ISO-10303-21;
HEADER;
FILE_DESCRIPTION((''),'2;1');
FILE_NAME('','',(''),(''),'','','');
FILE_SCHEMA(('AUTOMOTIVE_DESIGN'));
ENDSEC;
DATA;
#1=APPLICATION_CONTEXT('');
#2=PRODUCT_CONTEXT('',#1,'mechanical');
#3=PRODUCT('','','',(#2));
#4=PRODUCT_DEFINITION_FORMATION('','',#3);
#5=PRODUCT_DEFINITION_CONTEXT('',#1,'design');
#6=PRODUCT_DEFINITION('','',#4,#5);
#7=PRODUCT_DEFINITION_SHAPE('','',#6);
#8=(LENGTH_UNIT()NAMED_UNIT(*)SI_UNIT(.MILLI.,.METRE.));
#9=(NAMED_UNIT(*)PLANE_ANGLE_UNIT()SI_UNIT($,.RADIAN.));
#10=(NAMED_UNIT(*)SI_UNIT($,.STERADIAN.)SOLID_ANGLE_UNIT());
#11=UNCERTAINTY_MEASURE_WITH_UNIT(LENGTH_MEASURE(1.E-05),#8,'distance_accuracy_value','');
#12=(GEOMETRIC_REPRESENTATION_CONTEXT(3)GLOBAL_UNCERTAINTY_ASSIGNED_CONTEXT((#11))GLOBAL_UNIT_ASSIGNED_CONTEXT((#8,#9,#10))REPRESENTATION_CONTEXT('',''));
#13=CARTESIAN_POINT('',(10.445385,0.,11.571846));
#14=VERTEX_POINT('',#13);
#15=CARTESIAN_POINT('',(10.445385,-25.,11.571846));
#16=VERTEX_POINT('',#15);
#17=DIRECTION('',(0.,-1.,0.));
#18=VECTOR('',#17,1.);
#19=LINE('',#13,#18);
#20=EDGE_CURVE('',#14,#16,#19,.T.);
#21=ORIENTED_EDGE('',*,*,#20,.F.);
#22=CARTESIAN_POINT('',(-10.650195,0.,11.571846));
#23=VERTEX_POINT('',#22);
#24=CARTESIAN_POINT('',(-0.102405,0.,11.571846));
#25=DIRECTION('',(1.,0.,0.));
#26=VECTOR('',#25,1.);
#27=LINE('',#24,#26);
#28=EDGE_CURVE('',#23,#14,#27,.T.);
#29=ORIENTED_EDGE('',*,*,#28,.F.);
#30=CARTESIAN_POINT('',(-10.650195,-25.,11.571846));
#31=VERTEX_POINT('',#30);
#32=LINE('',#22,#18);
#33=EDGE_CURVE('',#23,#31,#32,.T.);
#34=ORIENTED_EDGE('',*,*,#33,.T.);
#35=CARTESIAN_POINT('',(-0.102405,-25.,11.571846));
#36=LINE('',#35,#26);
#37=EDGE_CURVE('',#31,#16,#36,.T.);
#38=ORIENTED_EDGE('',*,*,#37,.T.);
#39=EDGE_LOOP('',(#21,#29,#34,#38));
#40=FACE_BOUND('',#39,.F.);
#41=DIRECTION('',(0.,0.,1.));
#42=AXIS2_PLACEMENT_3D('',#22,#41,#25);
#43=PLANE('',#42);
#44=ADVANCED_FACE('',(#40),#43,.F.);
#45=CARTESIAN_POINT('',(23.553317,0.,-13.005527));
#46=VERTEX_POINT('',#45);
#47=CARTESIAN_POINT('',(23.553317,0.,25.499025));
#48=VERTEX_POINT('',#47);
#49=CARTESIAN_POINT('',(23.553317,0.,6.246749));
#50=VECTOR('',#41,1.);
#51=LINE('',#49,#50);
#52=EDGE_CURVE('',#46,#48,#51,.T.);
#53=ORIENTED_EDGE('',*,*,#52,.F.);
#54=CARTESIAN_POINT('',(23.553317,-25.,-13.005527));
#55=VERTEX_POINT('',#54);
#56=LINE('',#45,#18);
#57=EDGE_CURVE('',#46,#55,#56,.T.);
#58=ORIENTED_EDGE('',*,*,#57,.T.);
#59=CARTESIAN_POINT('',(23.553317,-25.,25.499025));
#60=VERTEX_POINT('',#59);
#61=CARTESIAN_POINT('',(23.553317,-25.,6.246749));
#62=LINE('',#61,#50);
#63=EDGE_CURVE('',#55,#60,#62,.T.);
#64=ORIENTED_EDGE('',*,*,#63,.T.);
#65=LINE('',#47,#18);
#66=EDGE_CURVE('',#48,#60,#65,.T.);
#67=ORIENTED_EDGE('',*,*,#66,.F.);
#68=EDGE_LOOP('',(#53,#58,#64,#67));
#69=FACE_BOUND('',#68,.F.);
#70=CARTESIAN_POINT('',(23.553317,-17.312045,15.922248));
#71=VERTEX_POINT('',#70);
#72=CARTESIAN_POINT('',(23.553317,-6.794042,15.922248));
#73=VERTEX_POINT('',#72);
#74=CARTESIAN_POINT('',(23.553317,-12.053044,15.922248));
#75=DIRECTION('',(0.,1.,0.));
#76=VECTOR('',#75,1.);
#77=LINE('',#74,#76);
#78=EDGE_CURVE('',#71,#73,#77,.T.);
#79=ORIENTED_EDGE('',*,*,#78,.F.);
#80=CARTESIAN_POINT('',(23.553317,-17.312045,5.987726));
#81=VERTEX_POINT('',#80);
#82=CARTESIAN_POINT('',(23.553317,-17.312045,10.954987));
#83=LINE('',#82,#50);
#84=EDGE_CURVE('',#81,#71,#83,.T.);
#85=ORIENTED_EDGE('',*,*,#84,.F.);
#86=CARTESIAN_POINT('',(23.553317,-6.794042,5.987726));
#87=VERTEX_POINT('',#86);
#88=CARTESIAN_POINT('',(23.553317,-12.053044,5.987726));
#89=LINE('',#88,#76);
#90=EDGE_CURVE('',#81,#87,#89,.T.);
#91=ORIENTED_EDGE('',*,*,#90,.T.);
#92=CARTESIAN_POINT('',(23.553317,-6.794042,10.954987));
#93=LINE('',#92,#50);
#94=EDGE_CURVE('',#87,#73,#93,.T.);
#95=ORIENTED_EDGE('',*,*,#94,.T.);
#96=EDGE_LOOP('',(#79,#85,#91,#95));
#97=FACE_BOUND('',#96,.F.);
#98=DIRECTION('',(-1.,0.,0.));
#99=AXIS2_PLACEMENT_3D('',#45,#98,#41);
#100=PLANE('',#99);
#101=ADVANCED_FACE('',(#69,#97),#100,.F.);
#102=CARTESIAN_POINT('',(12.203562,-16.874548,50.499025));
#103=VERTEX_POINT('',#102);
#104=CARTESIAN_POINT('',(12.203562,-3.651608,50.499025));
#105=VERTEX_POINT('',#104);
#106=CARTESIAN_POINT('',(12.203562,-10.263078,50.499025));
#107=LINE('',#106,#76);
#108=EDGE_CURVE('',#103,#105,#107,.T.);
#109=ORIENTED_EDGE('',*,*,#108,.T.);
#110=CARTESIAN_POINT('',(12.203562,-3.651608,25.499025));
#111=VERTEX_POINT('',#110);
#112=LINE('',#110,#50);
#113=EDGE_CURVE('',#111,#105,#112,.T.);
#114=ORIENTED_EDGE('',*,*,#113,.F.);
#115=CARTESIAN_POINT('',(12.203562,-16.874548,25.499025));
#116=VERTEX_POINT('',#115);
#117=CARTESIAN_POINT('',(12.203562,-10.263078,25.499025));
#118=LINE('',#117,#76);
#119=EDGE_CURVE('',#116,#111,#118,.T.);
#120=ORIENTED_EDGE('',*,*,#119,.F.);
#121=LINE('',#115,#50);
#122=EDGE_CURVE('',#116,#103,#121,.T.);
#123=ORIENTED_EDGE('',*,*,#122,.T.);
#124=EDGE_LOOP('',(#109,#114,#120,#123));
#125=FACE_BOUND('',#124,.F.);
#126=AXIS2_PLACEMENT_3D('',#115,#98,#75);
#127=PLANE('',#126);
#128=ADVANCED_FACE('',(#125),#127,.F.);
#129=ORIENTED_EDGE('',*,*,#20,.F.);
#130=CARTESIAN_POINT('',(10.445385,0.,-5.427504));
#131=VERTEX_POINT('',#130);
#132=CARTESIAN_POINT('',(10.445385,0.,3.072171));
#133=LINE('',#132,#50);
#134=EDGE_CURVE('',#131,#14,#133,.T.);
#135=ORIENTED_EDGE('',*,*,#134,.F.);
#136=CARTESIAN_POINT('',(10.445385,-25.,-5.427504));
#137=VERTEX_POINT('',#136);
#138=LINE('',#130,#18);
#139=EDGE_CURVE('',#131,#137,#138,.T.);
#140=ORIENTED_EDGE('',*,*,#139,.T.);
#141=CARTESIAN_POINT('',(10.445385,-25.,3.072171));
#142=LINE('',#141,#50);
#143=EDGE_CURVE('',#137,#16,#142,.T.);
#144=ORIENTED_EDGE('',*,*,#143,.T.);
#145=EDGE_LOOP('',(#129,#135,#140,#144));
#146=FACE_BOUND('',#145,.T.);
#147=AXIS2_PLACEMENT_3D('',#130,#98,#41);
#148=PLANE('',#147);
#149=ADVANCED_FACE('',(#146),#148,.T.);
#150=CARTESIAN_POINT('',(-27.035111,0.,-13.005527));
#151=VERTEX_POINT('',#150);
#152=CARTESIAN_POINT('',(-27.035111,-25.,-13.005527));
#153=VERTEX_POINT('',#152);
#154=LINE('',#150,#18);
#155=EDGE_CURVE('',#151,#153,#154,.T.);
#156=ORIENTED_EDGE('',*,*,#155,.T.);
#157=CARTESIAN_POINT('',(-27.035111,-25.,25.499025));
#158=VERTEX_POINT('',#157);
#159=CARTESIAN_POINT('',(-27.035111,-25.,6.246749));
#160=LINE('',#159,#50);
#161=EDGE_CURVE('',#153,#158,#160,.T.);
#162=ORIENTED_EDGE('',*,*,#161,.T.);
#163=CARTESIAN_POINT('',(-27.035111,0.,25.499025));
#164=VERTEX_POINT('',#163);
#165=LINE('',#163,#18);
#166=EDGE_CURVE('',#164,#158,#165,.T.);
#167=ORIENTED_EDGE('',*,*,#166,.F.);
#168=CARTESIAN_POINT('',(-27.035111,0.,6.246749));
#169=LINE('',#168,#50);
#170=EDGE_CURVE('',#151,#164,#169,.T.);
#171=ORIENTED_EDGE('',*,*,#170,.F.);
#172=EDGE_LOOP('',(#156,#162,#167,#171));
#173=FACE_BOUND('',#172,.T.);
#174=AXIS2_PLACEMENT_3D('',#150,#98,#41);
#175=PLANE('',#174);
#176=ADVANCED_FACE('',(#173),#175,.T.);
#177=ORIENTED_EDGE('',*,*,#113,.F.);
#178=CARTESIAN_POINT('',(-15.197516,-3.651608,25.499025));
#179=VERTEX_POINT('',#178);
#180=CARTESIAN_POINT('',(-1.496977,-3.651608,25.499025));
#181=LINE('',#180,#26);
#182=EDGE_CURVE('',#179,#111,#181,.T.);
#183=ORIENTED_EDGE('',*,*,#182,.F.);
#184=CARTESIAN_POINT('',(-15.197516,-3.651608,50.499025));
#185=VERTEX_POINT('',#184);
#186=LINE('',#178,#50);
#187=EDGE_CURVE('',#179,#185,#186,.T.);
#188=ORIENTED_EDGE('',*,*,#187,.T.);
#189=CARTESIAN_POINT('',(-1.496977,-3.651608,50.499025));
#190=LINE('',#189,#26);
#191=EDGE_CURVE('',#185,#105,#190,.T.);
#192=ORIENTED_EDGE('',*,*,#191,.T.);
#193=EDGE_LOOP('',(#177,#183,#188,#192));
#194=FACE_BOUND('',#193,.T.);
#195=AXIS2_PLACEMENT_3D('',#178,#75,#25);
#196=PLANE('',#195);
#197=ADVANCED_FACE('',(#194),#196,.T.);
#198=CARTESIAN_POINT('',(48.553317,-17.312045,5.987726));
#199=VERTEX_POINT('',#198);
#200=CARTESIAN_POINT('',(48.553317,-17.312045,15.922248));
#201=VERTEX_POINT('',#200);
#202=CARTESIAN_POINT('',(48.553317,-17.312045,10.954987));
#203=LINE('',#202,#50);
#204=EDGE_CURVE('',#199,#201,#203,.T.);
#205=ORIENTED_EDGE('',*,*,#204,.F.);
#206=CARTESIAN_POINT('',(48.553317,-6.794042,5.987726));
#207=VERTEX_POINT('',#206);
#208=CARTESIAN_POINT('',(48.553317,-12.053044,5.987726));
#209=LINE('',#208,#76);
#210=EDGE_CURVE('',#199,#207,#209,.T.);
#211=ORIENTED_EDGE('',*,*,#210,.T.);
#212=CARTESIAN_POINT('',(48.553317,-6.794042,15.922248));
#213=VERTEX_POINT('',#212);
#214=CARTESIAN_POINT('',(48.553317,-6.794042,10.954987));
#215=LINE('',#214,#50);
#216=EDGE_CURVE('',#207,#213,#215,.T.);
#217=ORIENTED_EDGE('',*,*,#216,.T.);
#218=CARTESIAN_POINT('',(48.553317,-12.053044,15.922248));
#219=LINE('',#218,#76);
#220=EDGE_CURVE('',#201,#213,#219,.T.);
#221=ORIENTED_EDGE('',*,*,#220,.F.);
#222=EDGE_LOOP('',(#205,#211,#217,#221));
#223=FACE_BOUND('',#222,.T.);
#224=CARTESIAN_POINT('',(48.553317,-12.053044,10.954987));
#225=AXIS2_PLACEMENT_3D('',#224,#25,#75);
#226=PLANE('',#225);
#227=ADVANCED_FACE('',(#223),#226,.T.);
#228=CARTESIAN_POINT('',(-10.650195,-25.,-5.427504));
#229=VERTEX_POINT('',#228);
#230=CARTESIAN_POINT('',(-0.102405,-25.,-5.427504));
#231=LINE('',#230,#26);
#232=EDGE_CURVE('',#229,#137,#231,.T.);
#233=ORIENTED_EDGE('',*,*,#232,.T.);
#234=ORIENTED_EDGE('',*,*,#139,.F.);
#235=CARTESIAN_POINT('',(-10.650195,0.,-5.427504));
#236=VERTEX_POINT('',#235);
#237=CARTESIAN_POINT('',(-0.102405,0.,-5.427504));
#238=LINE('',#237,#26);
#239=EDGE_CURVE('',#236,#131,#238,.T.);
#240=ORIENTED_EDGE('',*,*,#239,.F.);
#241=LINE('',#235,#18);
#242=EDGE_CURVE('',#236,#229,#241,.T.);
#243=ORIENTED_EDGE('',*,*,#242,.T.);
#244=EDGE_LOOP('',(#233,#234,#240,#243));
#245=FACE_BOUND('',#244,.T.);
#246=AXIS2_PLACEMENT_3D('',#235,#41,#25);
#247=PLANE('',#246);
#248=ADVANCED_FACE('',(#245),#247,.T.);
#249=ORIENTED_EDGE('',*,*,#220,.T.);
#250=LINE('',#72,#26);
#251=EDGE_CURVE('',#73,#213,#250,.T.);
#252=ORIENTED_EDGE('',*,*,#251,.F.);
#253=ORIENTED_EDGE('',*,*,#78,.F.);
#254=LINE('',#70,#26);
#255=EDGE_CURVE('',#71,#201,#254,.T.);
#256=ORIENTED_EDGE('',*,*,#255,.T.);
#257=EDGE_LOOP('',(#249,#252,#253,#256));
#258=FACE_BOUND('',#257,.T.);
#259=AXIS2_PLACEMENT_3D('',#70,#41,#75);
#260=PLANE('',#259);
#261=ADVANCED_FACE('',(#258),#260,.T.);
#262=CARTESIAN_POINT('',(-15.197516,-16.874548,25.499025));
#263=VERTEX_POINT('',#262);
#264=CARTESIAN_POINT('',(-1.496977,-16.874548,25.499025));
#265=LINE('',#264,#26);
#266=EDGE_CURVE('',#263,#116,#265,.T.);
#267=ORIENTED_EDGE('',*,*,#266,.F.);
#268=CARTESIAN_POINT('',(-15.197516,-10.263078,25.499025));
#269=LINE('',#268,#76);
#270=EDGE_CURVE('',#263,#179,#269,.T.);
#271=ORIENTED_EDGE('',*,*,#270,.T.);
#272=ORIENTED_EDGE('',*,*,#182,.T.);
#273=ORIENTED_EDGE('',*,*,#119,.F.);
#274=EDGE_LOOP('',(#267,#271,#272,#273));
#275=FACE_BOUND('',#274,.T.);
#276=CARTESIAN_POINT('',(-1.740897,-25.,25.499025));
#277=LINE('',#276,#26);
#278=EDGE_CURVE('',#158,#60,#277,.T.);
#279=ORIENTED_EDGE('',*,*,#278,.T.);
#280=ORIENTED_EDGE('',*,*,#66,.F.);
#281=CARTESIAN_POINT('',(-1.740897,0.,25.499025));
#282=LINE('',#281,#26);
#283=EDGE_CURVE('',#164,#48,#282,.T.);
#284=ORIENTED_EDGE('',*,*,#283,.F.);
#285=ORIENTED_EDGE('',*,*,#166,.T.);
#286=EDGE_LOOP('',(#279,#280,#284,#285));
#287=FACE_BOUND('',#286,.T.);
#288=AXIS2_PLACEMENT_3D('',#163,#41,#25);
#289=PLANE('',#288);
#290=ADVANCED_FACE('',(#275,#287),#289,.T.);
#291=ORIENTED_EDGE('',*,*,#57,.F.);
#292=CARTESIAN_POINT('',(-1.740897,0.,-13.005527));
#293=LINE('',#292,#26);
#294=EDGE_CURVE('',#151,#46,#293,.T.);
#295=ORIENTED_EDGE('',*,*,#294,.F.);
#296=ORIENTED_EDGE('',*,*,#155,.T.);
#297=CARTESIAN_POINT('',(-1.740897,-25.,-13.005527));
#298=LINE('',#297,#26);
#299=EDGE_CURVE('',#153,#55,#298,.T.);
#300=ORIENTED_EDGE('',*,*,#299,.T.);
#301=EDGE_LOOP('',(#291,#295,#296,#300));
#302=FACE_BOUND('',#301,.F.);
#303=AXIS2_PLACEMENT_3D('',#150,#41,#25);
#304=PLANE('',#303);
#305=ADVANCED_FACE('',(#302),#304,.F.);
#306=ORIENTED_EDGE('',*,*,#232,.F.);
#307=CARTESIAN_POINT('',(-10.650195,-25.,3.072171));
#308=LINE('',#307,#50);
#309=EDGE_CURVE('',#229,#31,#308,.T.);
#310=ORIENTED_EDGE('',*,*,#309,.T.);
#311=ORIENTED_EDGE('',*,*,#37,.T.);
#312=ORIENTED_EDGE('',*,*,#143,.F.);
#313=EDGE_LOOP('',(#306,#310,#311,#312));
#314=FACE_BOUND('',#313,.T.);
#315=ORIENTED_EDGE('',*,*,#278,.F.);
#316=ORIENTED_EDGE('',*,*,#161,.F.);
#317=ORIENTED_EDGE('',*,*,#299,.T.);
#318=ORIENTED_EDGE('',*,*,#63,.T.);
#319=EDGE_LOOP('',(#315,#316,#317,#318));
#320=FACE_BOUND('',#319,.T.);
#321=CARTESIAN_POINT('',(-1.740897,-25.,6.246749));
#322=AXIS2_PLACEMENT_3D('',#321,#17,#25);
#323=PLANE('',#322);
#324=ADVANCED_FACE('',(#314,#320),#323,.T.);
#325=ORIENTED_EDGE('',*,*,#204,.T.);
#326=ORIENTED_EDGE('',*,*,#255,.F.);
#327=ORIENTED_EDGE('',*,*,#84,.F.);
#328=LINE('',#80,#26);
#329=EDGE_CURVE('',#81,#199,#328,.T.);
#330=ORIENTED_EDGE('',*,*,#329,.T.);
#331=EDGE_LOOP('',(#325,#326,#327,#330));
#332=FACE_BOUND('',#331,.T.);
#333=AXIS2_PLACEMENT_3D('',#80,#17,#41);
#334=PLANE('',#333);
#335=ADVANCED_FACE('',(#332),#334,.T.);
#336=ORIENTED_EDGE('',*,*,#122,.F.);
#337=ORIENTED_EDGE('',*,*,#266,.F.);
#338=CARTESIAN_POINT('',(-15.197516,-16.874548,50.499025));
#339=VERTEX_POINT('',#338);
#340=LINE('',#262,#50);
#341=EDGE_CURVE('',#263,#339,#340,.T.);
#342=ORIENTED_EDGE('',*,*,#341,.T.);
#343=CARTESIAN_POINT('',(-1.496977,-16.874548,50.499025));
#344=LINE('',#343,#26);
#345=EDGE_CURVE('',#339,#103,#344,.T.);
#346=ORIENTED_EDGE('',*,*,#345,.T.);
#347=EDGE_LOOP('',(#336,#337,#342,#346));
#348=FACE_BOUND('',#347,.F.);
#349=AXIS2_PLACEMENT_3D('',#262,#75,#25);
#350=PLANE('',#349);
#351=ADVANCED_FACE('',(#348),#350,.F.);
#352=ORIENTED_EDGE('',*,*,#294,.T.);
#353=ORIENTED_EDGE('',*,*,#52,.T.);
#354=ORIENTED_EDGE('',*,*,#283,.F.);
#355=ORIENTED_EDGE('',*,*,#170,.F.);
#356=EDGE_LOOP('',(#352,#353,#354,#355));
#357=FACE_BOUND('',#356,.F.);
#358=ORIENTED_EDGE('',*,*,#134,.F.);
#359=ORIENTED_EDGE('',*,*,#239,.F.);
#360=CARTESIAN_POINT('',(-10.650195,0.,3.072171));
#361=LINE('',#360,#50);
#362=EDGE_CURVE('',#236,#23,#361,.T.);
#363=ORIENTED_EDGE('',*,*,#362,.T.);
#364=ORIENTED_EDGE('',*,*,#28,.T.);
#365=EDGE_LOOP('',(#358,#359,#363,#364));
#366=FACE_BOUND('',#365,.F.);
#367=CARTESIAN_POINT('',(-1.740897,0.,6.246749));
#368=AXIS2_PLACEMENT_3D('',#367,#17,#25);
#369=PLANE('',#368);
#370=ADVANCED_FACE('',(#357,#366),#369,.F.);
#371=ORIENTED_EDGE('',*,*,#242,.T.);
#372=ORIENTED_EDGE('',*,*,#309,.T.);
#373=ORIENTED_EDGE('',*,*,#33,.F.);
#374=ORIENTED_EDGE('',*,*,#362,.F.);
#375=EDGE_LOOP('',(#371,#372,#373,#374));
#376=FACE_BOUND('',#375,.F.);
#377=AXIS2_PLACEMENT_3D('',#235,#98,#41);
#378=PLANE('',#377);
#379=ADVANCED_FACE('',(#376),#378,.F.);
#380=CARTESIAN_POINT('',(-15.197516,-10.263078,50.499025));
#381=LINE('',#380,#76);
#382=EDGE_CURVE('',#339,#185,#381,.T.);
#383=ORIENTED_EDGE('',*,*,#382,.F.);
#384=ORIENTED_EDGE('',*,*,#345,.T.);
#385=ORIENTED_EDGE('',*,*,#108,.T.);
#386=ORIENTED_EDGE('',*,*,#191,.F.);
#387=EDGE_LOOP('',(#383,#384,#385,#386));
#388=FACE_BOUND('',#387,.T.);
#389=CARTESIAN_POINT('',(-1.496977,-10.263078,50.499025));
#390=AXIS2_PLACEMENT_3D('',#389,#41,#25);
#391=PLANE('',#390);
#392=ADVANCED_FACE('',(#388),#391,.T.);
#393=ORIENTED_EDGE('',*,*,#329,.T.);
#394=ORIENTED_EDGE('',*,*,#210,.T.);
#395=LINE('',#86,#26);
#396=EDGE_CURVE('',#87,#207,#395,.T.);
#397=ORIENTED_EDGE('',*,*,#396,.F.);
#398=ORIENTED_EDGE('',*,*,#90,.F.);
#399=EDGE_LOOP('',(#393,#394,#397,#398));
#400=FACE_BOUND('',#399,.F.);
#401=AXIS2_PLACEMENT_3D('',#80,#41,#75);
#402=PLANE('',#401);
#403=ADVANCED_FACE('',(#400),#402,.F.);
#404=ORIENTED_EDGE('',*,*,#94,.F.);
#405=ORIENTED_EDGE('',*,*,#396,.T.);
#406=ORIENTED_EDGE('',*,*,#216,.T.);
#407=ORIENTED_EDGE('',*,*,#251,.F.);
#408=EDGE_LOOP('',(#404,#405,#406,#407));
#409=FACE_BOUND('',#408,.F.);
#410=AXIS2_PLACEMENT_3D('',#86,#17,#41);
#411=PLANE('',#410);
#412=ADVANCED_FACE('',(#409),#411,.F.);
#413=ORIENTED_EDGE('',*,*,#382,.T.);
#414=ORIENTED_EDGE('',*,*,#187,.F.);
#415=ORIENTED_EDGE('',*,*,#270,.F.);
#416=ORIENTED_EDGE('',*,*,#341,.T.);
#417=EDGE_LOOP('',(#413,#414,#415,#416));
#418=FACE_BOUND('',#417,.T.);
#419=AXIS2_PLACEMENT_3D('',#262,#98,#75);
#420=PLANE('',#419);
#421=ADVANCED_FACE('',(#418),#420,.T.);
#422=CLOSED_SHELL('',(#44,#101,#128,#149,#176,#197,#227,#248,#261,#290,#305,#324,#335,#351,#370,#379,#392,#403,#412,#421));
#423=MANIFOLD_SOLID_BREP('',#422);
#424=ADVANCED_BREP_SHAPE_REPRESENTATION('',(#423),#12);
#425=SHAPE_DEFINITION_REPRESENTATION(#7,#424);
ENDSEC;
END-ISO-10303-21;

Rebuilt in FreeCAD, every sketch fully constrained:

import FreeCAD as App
import Part
import Sketcher

V = App.Vector


def add_polygon(sketch, points):
    """Adds a closed chain of lines whose ends are joined by coincident constraints."""
    first, n = sketch.GeometryCount, len(points)
    for a, b in zip(points, points[1:] + points[:1]):
        sketch.addGeometry(Part.LineSegment(App.Vector(*a, 0), App.Vector(*b, 0)), False)
    for i in range(n):
        sketch.addConstraint(Sketcher.Constraint("Coincident", first + i, 2, first + (i + 1) % n, 1))

doc = App.newDocument("Part")
body = doc.addObject("PartDesign::Body", "Body")

# Sketch on XZ plane
sketch1 = doc.addObject("Sketcher::SketchObject", "Sketch")
body.addObject(sketch1)
sketch1.AttachmentSupport = (doc.XZ_Plane, [""])
sketch1.MapMode = "FlatFace"
add_polygon(sketch1, [(-27, 25), (-27, -13), (24, -13), (24, 25)])  # lines 0-3
add_polygon(sketch1, [(10, -5), (-11, -5), (-11, 12), (10, 12)])  # lines 4-7
sketch1.addConstraint([
    Sketcher.Constraint("Vertical", 0),
    Sketcher.Constraint("Horizontal", 1),
    Sketcher.Constraint("Vertical", 2),
    Sketcher.Constraint("Horizontal", 3),
    Sketcher.Constraint("Horizontal", 4),
    Sketcher.Constraint("Vertical", 5),
    Sketcher.Constraint("Horizontal", 6),
    Sketcher.Constraint("Vertical", 7),
    Sketcher.Constraint("DistanceX", 1, 1, 1, 2, 50.588429),
    Sketcher.Constraint("DistanceX", 4, 2, 4, 1, 21.09558),
    Sketcher.Constraint("DistanceY", 5, 1, 5, 2, 16.999349),
    Sketcher.Constraint("DistanceY", 0, 2, 0, 1, 38.504552),
    Sketcher.Constraint("DistanceX", 0, 2, -1, 1, 27.035111),
    Sketcher.Constraint("DistanceY", 4, 2, 3, 2, 30.926528),
    Sketcher.Constraint("DistanceY", 0, 2, -1, 1, 13.005527),
    Sketcher.Constraint("DistanceX", 4, 2, -1, 1, 10.650195),
])
pad1 = doc.addObject("PartDesign::Pad", "Pad")
body.addObject(pad1)
pad1.Profile = sketch1
pad1.Length = 25

# Sketch on XY plane
sketch2 = doc.addObject("Sketcher::SketchObject", "Sketch001")
body.addObject(sketch2)
sketch2.AttachmentSupport = (doc.XY_Plane, [""])
sketch2.MapMode = "FlatFace"
sketch2.AttachmentOffset = App.Placement(V(0, 0, 25.499025), App.Rotation())
add_polygon(sketch2, [(-15, -4), (-15, -17), (12, -17), (12, -4)])  # lines 0-3
sketch2.addConstraint([
    Sketcher.Constraint("Vertical", 0),
    Sketcher.Constraint("Horizontal", 1),
    Sketcher.Constraint("Vertical", 2),
    Sketcher.Constraint("Horizontal", 3),
    Sketcher.Constraint("DistanceY", 0, 2, 0, 1, 13.22294),
    Sketcher.Constraint("DistanceX", 1, 1, 1, 2, 27.401078),
    Sketcher.Constraint("DistanceY", 0, 2, -1, 1, 16.874548),
    Sketcher.Constraint("DistanceX", 0, 2, -1, 1, 15.197516),
])
pad2 = doc.addObject("PartDesign::Pad", "Pad001")
body.addObject(pad2)
pad2.Profile = sketch2
pad2.Length = 25

# Sketch on YZ plane
sketch3 = doc.addObject("Sketcher::SketchObject", "Sketch002")
body.addObject(sketch3)
sketch3.AttachmentSupport = (doc.YZ_Plane, [""])
sketch3.MapMode = "FlatFace"
sketch3.AttachmentOffset = App.Placement(V(0, 0, 23.553317), App.Rotation())
add_polygon(sketch3, [(-17, 16), (-17, 6), (-7, 6), (-7, 16)])  # lines 0-3
sketch3.addConstraint([
    Sketcher.Constraint("Vertical", 0),
    Sketcher.Constraint("Horizontal", 1),
    Sketcher.Constraint("Vertical", 2),
    Sketcher.Constraint("Horizontal", 3),
    Sketcher.Constraint("DistanceX", 1, 1, 1, 2, 10.518003),
    Sketcher.Constraint("DistanceY", 0, 2, 0, 1, 9.934522),
    Sketcher.Constraint("DistanceX", 0, 2, -1, 1, 17.312045),
    Sketcher.Constraint("DistanceY", -1, 1, 0, 2, 5.987726),
])
pad3 = doc.addObject("PartDesign::Pad", "Pad002")
body.addObject(pad3)
pad3.Profile = sketch3
pad3.Length = 25

doc.recompute()
